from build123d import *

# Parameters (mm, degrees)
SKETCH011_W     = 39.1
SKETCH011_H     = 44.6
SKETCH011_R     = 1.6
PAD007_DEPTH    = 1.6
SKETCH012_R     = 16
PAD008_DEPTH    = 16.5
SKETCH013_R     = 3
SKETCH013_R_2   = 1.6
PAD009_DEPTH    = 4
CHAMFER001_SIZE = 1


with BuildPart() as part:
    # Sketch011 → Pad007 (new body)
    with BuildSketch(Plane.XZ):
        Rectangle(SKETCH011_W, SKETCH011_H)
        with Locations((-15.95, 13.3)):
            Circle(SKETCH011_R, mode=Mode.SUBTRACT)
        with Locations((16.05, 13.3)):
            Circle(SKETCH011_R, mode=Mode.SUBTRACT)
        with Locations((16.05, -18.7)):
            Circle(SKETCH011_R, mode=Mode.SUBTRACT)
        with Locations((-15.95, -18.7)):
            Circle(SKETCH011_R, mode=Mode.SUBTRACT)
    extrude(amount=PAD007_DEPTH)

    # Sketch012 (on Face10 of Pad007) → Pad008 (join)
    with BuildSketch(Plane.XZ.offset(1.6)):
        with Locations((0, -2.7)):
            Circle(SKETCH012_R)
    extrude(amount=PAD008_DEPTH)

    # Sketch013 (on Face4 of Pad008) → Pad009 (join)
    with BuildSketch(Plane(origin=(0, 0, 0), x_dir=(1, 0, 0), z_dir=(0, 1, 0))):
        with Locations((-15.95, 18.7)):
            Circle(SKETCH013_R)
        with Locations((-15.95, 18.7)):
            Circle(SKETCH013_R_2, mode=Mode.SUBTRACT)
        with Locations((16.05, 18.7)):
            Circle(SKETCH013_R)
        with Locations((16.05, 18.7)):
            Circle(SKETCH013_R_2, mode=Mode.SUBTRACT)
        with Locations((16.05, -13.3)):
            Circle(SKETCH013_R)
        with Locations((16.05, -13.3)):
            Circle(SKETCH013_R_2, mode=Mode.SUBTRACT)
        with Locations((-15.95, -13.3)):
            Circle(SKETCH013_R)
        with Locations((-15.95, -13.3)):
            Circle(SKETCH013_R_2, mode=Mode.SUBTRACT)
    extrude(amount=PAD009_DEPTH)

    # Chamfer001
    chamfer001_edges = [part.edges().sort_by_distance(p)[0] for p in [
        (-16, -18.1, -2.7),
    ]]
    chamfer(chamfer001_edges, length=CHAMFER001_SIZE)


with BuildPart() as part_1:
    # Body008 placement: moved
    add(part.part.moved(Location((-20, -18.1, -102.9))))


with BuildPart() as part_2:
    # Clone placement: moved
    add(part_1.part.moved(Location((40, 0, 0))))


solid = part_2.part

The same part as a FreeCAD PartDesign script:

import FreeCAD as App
import Part
import Sketcher

V = App.Vector


def edges_at(feature, points):
    """Names of the edges that pass closest to the given points."""
    edges = feature.Shape.Edges
    near = lambda p: min(range(len(edges)), key=lambda i: edges[i].distToShape(Part.Vertex(*p))[0])
    return sorted({f"Edge{near(p) + 1}" for p in points})

doc = App.newDocument("Part")
params = doc.addObject("Spreadsheet::Sheet", "Params")
for row, (alias, value) in enumerate([
    ("sketch1_diameter", "3.2 mm"),
    ("sketch1_width", "39.1 mm"),
    ("sketch1_height", "44.6 mm"),
    ("pad1_length", "1.6 mm"),
    ("sketch2_diameter", "32 mm"),
    ("pad2_length", "16.5 mm"),
    ("sketch3_diameter", "6 mm"),
    ("sketch3_diameter2", "3.2 mm"),
    ("pad3_length", "4 mm"),
    ("chamfer_size", "1 mm"),
], start=1):
    params.set(f"A{row}", alias)
    params.set(f"B{row}", "=" + value)
    params.setAlias(f"B{row}", alias)

body = doc.addObject("PartDesign::Body", "Body")

# Sketch on XZ plane
sketch1 = doc.addObject("Sketcher::SketchObject", "Sketch")
body.addObject(sketch1)
sketch1.AttachmentSupport = (doc.XZ_Plane, [""])
sketch1.MapMode = "FlatFace"
sketch1.addGeometry([
    Part.LineSegment(V(-19.6, 22.3, 0), V(-19.6, -22.3, 0)),  # 0
    Part.LineSegment(V(-19.6, -22.3, 0), V(19.6, -22.3, 0)),  # 1
    Part.LineSegment(V(19.6, -22.3, 0), V(19.6, 22.3, 0)),  # 2
    Part.LineSegment(V(19.6, 22.3, 0), V(-19.6, 22.3, 0)),  # 3
    Part.Circle(V(-15.9, -18.7, 0), V(0, 0, 1), 1.6),  # 4
    Part.Circle(V(16.1, -18.7, 0), V(0, 0, 1), 1.6),  # 5
    Part.Circle(V(-15.9, 13.3, 0), V(0, 0, 1), 1.6),  # 6
    Part.Circle(V(16.1, 13.3, 0), V(0, 0, 1), 1.6),  # 7
], False)
sketch1.addConstraint([
    Sketcher.Constraint("Coincident", 0, 2, 1, 1),
    Sketcher.Constraint("Coincident", 1, 2, 2, 1),
    Sketcher.Constraint("Coincident", 2, 2, 3, 1),
    Sketcher.Constraint("Coincident", 3, 2, 0, 1),
    Sketcher.Constraint("Vertical", 0),
    Sketcher.Constraint("Horizontal", 1),
    Sketcher.Constraint("Vertical", 2),
    Sketcher.Constraint("Horizontal", 3),
    Sketcher.Constraint("Equal", 4, 5),
    Sketcher.Constraint("Equal", 5, 6),
    Sketcher.Constraint("Equal", 6, 7),
    Sketcher.Constraint("Symmetric", 0, 2, 2, 2, -1, 1),
    Sketcher.Constraint("Horizontal", 4, 3, 5, 3),
    Sketcher.Constraint("Horizontal", 6, 3, 7, 3),
    Sketcher.Constraint("Vertical", 4, 3, 6, 3),
    Sketcher.Constraint("Vertical", 5, 3, 7, 3),
    Sketcher.Constraint("Diameter", 4, 3.2),
    Sketcher.Constraint("DistanceX", 1, 1, 1, 2, 39.1),
    Sketcher.Constraint("DistanceY", 0, 2, 0, 1, 44.6),
    Sketcher.Constraint("DistanceX", 4, 3, 5, 3, 32.0),
    Sketcher.Constraint("DistanceY", 4, 3, 6, 3, 32.0),
    Sketcher.Constraint("DistanceY", 7, 3, 2, 2, 9.0),
    Sketcher.Constraint("DistanceX", 0, 2, 4, 3, 3.6),
])
sketch1.setExpression("Constraints[16]", "Params.sketch1_diameter")
sketch1.setExpression("Constraints[17]", "Params.sketch1_width")
sketch1.setExpression("Constraints[18]", "Params.sketch1_height")
pad1 = doc.addObject("PartDesign::Pad", "Pad")
body.addObject(pad1)
pad1.Profile = sketch1
pad1.setExpression("Length", "Params.pad1_length")

# Sketch on XZ plane
sketch2 = doc.addObject("Sketcher::SketchObject", "Sketch001")
body.addObject(sketch2)
sketch2.AttachmentSupport = (doc.XZ_Plane, [""])
sketch2.MapMode = "FlatFace"
sketch2.AttachmentOffset = App.Placement(V(0, 0, 1.6), App.Rotation())
sketch2.addGeometry(Part.Circle(V(0, -3, 0), V(0, 0, 1), 16), False)
sketch2.addConstraint([
    Sketcher.Constraint("PointOnObject", 0, 3, -2),
    Sketcher.Constraint("Diameter", 0, 32.0),
    Sketcher.Constraint("DistanceY", 0, 3, -1, 1, 2.7),
])
sketch2.setExpression("Constraints[1]", "Params.sketch2_diameter")
pad2 = doc.addObject("PartDesign::Pad", "Pad001")
body.addObject(pad2)
pad2.Profile = sketch2
pad2.setExpression("Length", "Params.pad2_length")

# Sketch on XZ plane
sketch3 = doc.addObject("Sketcher::SketchObject", "Sketch002")
body.addObject(sketch3)
sketch3.AttachmentSupport = (doc.XZ_Plane, [""])
sketch3.MapMode = "FlatFace"
sketch3.addGeometry([
    Part.Circle(V(-15.9, -18.7, 0), V(0, 0, 1), 3),  # 0
    Part.Circle(V(-15.9, -18.7, 0), V(0, 0, 1), 1.6),  # 1
    Part.Circle(V(16.1, -18.7, 0), V(0, 0, 1), 3),  # 2
    Part.Circle(V(16.1, -18.7, 0), V(0, 0, 1), 1.6),  # 3
    Part.Circle(V(16.1, 13.3, 0), V(0, 0, 1), 3),  # 4
    Part.Circle(V(16.1, 13.3, 0), V(0, 0, 1), 1.6),  # 5
    Part.Circle(V(-15.9, 13.3, 0), V(0, 0, 1), 3),  # 6
    Part.Circle(V(-15.9, 13.3, 0), V(0, 0, 1), 1.6),  # 7
], False)
sketch3.addConstraint([
    Sketcher.Constraint("Coincident", 1, 3, 0, 3),
    Sketcher.Constraint("Coincident", 3, 3, 2, 3),
    Sketcher.Constraint("Coincident", 5, 3, 4, 3),
    Sketcher.Constraint("Coincident", 7, 3, 6, 3),
    Sketcher.Constraint("Equal", 0, 2),
    Sketcher.Constraint("Equal", 1, 3),
    Sketcher.Constraint("Equal", 2, 4),
    Sketcher.Constraint("Equal", 3, 5),
    Sketcher.Constraint("Equal", 4, 6),
    Sketcher.Constraint("Equal", 5, 7),
    Sketcher.Constraint("Horizontal", 1, 3, 2, 3),
    Sketcher.Constraint("Horizontal", 5, 3, 6, 3),
    Sketcher.Constraint("Vertical", 3, 3, 4, 3),
    Sketcher.Constraint("Vertical", 1, 3, 6, 3),
    Sketcher.Constraint("Diameter", 0, 6.0),
    Sketcher.Constraint("Diameter", 1, 3.2),
    Sketcher.Constraint("DistanceX", 0, 3, 2, 3, 32.0),
    Sketcher.Constraint("DistanceY", 2, 3, 4, 3, 32.0),
    Sketcher.Constraint("DistanceY", 0, 3, -1, 1, 18.7),
    Sketcher.Constraint("DistanceX", 0, 3, -1, 1, 15.95),
])
sketch3.setExpression("Constraints[14]", "Params.sketch3_diameter")
sketch3.setExpression("Constraints[15]", "Params.sketch3_diameter2")
pad3 = doc.addObject("PartDesign::Pad", "Pad002")
body.addObject(pad3)
pad3.Profile = sketch3
pad3.setExpression("Length", "Params.pad3_length")
pad3.Reversed = True
doc.recompute()

chamfer = doc.addObject("PartDesign::Chamfer", "Chamfer")
body.addObject(chamfer)
chamfer.Base = (pad3, edges_at(pad3, [(-16, -18.1, -2.7)]))
chamfer.setExpression("Size", "Params.chamfer_size")
body2 = doc.addObject("PartDesign::Body", "Body001")
doc.recompute()

body.Placement = App.Placement(V(-20, -18.1, -102.9), App.Rotation(V(0, 0, 1), 0))
boolean = doc.addObject("PartDesign::Boolean", "Boolean")
body2.addObject(boolean)
boolean.Type = "Fuse"
boolean.addObjects([body])
body3 = doc.addObject("PartDesign::Body", "Body002")
doc.recompute()

body2.Placement = App.Placement(V(40, 0, 0), App.Rotation(V(0, 0, 1), 0))
boolean2 = doc.addObject("PartDesign::Boolean", "Boolean001")
body3.addObject(boolean2)
boolean2.Type = "Fuse"
boolean2.addObjects([body2])

doc.recompute()
